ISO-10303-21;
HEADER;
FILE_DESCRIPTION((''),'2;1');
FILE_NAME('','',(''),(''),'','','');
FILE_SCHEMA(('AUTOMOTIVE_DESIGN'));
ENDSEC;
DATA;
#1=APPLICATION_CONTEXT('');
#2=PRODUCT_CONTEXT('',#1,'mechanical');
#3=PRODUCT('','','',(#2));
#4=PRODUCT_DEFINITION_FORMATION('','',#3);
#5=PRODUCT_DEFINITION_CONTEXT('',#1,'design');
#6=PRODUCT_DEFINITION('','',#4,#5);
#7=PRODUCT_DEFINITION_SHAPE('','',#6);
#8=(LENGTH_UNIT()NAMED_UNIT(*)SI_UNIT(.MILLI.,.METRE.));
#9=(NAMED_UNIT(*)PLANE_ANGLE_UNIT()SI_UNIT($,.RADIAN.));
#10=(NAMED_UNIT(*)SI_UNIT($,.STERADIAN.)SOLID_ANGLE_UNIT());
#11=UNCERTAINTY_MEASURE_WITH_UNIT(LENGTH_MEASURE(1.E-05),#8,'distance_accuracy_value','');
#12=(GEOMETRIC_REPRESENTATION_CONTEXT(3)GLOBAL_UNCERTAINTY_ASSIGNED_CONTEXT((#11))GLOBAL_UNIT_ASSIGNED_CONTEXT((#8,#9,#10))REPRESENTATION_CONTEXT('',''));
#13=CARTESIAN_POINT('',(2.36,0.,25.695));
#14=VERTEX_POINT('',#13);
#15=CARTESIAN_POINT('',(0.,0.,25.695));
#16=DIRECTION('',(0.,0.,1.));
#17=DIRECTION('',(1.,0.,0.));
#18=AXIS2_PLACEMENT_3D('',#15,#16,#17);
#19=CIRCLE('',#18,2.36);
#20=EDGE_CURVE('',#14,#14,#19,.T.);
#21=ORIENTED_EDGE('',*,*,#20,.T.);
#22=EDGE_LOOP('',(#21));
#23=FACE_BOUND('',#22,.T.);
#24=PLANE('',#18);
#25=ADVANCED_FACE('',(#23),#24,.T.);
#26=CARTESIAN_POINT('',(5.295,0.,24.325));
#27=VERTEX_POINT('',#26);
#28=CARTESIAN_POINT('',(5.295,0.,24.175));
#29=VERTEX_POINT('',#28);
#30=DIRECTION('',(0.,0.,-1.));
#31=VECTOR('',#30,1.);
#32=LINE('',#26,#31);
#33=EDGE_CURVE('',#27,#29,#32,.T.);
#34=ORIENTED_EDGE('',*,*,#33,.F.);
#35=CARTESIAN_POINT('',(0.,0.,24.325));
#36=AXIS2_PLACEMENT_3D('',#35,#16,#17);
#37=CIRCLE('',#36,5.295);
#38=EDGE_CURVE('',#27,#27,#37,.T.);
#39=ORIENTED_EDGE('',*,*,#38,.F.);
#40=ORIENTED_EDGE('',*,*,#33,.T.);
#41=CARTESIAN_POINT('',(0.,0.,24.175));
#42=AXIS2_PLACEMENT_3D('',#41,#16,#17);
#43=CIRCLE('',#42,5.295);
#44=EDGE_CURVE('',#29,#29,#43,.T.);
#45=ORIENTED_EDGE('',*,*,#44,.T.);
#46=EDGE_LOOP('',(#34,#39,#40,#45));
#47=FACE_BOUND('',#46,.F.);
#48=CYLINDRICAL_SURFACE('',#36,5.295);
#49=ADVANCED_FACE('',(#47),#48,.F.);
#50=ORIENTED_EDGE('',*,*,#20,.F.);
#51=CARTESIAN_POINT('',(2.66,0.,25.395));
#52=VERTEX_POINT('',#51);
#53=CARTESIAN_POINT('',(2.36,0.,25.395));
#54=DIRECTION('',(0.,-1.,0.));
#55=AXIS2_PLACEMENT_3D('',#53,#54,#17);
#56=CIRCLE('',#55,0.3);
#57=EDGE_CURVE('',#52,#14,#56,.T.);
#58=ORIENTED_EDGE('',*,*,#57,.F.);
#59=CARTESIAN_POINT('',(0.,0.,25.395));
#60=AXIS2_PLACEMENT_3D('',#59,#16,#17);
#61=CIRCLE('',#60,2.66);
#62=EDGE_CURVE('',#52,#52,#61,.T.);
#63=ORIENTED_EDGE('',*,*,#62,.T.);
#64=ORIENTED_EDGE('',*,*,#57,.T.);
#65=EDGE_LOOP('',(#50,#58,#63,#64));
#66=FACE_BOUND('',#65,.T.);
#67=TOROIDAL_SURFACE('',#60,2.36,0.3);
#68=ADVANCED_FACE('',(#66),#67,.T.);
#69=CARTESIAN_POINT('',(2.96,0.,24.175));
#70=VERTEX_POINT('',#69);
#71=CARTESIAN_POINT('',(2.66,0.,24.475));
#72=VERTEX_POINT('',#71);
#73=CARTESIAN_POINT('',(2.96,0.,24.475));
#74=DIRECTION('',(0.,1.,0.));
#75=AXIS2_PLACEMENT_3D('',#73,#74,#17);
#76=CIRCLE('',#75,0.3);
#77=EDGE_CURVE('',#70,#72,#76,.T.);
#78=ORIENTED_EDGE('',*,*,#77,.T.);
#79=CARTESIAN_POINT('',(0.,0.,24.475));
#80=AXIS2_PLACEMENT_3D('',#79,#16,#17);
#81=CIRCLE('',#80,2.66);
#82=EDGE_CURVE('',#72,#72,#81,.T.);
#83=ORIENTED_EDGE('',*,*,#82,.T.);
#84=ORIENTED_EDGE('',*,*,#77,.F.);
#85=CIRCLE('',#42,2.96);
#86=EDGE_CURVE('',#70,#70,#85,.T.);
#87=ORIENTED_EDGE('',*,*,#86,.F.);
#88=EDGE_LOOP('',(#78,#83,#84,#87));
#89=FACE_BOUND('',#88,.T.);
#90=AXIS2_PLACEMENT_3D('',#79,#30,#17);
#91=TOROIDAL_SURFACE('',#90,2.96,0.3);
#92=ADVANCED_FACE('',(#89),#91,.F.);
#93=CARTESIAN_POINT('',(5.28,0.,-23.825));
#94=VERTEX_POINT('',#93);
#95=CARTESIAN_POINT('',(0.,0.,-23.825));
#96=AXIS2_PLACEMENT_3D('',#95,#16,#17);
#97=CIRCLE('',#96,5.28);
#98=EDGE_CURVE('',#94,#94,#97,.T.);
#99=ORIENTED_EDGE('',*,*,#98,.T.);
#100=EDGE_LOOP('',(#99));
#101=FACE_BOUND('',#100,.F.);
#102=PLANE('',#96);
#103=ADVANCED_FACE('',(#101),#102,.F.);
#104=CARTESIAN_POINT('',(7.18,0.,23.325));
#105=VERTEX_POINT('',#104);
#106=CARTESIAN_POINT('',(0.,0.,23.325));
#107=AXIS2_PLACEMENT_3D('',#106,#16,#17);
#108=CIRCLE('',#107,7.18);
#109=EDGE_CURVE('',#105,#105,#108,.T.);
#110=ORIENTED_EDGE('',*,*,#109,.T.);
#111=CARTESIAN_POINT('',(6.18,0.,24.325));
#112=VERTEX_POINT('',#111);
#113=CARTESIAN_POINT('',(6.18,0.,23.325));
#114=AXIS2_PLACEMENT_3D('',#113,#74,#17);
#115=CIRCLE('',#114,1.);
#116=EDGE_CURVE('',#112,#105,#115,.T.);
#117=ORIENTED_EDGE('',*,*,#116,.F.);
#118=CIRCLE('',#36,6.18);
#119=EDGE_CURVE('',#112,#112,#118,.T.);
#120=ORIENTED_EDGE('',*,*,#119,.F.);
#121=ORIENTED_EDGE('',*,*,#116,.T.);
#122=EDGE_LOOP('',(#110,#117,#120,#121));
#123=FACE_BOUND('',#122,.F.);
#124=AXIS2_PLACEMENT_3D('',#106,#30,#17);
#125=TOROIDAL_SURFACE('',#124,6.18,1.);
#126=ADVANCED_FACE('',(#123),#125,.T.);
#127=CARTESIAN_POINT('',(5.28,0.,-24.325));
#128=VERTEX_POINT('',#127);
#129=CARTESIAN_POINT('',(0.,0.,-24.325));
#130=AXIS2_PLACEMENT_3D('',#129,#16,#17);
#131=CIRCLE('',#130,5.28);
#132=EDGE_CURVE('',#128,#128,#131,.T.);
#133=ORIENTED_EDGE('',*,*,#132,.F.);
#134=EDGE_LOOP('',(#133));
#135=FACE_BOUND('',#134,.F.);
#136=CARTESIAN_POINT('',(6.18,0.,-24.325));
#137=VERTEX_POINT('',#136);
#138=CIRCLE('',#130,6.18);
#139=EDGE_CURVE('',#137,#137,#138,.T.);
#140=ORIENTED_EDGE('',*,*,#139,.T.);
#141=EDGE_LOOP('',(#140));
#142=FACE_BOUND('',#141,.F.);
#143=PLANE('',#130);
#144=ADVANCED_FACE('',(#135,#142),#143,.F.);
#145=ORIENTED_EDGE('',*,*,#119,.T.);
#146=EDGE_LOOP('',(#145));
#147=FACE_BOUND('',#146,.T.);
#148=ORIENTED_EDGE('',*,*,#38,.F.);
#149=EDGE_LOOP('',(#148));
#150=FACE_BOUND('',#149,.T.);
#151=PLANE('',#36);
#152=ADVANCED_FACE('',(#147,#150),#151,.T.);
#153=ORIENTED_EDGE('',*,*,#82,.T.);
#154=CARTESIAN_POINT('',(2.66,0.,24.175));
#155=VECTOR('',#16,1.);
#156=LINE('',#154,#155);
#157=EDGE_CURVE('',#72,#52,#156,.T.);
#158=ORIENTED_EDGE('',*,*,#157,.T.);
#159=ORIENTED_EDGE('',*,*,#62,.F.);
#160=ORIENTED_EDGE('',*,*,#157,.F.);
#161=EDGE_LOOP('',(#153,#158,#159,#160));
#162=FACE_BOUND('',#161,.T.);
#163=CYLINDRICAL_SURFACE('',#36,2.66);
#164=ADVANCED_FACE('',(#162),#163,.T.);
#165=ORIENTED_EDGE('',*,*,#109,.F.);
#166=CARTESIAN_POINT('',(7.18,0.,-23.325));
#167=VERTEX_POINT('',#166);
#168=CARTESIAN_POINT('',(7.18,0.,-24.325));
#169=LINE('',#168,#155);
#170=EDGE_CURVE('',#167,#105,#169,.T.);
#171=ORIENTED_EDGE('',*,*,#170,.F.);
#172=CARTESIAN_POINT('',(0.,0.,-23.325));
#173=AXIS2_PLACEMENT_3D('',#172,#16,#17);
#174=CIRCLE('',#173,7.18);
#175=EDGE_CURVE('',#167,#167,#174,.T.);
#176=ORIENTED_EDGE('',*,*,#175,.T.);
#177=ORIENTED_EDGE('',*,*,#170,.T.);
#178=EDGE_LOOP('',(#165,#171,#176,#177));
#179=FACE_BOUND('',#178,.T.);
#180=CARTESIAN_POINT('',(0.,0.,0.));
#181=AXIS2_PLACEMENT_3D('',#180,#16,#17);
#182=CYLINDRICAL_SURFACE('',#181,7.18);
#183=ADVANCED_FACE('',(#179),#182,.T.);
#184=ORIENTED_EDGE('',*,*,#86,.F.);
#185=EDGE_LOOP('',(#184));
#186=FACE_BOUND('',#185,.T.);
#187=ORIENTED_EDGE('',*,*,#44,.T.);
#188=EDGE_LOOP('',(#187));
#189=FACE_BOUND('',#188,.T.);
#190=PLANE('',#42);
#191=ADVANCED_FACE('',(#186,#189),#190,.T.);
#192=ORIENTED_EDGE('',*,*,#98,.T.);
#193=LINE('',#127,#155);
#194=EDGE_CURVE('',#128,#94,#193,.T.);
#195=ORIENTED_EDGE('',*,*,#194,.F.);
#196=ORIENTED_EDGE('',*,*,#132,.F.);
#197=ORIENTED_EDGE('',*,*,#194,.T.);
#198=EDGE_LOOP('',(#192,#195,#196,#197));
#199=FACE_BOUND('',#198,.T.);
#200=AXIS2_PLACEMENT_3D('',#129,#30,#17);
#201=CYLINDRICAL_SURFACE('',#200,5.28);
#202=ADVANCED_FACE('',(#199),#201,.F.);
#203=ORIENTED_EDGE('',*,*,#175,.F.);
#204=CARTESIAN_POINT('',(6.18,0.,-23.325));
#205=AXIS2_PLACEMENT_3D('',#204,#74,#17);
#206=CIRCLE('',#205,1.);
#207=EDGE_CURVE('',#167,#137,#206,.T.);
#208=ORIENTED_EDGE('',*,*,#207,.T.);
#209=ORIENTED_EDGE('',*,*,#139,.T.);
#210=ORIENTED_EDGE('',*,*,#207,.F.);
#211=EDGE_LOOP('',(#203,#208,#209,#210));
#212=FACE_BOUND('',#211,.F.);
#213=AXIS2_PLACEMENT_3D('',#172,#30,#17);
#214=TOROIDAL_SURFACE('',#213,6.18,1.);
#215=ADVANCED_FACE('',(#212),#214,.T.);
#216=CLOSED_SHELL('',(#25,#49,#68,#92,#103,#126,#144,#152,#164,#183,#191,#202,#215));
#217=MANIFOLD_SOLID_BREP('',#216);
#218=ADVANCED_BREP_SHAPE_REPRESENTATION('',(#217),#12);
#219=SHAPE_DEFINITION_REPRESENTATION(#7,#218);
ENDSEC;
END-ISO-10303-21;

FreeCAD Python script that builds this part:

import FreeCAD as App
import Part
import Sketcher


def edges_at(feature, points):
    """Names of the edges that pass closest to the given points."""
    edges = feature.Shape.Edges
    near = lambda p: min(range(len(edges)), key=lambda i: edges[i].distToShape(Part.Vertex(*p))[0])
    return sorted({f"Edge{near(p) + 1}" for p in points})

doc = App.newDocument("Part")
body = doc.addObject("PartDesign::Body", "Body")

sketch1 = doc.addObject("Sketcher::SketchObject", "Sketch")
body.addObject(sketch1)
sketch1.AttachmentSupport = (doc.XY_Plane, [""])
sketch1.MapMode = "FlatFace"
sketch1.addGeometry(Part.Circle(App.Vector(0, 0, 0), App.Vector(0, 0, 1), 7.18), False)
sketch1.addConstraint([
    Sketcher.Constraint("Coincident", 0, 3, -1, 1),
    Sketcher.Constraint("Diameter", 0, 14.36),
])
pad1 = doc.addObject("PartDesign::Pad", "Pad")
body.addObject(pad1)
pad1.Profile = sketch1
pad1.Length = 48.65
pad1.Midplane = True

sketch2 = doc.addObject("Sketcher::SketchObject", "Sketch001")
body.addObject(sketch2)
sketch2.AttachmentSupport = (doc.XY_Plane, [""])
sketch2.MapMode = "FlatFace"
sketch2.AttachmentOffset = App.Placement(App.Vector(0, 0, 24.325), App.Rotation())
sketch2.addGeometry(Part.Circle(App.Vector(0, 0, 0), App.Vector(0, 0, 1), 5.295), False)
sketch2.addConstraint([
    Sketcher.Constraint("Coincident", 0, 3, -1, 1),
    Sketcher.Constraint("Diameter", 0, 10.59),
])
pocket1 = doc.addObject("PartDesign::Pocket", "Pocket")
body.addObject(pocket1)
pocket1.Profile = sketch2
pocket1.Length = 0.15

sketch3 = doc.addObject("Sketcher::SketchObject", "Sketch002")
body.addObject(sketch3)
sketch3.AttachmentSupport = (doc.XY_Plane, [""])
sketch3.MapMode = "FlatFace"
sketch3.AttachmentOffset = App.Placement(App.Vector(0, 0, 24.325), App.Rotation())
sketch3.addGeometry(Part.Circle(App.Vector(0, 0, 0), App.Vector(0, 0, 1), 2.66), False)
sketch3.addConstraint([
    Sketcher.Constraint("Coincident", 0, 3, -1, 1),
    Sketcher.Constraint("Diameter", 0, 5.32),
])
pad2 = doc.addObject("PartDesign::Pad", "Pad001")
body.addObject(pad2)
pad2.Profile = sketch3
pad2.Type = "TwoLengths"
pad2.Length = 1.37
pad2.Length2 = 1

sketch4 = doc.addObject("Sketcher::SketchObject", "Sketch003")
body.addObject(sketch4)
sketch4.AttachmentSupport = (doc.XY_Plane, [""])
sketch4.MapMode = "FlatFace"
sketch4.AttachmentOffset = App.Placement(App.Vector(0, 0, -24.325), App.Rotation())
sketch4.addGeometry(Part.Circle(App.Vector(0, 0, 0), App.Vector(0, 0, 1), 5.28), False)
sketch4.addConstraint([
    Sketcher.Constraint("Coincident", 0, 3, -1, 1),
    Sketcher.Constraint("Diameter", 0, 10.56),
])
pocket2 = doc.addObject("PartDesign::Pocket", "Pocket001")
body.addObject(pocket2)
pocket2.Profile = sketch4
pocket2.Length = 0.5
pocket2.Reversed = True
doc.recompute()

fillet = doc.addObject("PartDesign::Fillet", "Fillet")
body.addObject(fillet)
fillet.Base = (pocket2, edges_at(pocket2, [(-7.18, 0, 24.325), (-7.18, 0, -24.325)]))
fillet.Radius = 1
doc.recompute()

fillet2 = doc.addObject("PartDesign::Fillet", "Fillet001")
body.addObject(fillet2)
fillet2.Base = (fillet, edges_at(fillet, [(-2.66, 0, 25.695), (-2.66, 0, 24.175)]))
fillet2.Radius = 0.3

doc.recompute()
